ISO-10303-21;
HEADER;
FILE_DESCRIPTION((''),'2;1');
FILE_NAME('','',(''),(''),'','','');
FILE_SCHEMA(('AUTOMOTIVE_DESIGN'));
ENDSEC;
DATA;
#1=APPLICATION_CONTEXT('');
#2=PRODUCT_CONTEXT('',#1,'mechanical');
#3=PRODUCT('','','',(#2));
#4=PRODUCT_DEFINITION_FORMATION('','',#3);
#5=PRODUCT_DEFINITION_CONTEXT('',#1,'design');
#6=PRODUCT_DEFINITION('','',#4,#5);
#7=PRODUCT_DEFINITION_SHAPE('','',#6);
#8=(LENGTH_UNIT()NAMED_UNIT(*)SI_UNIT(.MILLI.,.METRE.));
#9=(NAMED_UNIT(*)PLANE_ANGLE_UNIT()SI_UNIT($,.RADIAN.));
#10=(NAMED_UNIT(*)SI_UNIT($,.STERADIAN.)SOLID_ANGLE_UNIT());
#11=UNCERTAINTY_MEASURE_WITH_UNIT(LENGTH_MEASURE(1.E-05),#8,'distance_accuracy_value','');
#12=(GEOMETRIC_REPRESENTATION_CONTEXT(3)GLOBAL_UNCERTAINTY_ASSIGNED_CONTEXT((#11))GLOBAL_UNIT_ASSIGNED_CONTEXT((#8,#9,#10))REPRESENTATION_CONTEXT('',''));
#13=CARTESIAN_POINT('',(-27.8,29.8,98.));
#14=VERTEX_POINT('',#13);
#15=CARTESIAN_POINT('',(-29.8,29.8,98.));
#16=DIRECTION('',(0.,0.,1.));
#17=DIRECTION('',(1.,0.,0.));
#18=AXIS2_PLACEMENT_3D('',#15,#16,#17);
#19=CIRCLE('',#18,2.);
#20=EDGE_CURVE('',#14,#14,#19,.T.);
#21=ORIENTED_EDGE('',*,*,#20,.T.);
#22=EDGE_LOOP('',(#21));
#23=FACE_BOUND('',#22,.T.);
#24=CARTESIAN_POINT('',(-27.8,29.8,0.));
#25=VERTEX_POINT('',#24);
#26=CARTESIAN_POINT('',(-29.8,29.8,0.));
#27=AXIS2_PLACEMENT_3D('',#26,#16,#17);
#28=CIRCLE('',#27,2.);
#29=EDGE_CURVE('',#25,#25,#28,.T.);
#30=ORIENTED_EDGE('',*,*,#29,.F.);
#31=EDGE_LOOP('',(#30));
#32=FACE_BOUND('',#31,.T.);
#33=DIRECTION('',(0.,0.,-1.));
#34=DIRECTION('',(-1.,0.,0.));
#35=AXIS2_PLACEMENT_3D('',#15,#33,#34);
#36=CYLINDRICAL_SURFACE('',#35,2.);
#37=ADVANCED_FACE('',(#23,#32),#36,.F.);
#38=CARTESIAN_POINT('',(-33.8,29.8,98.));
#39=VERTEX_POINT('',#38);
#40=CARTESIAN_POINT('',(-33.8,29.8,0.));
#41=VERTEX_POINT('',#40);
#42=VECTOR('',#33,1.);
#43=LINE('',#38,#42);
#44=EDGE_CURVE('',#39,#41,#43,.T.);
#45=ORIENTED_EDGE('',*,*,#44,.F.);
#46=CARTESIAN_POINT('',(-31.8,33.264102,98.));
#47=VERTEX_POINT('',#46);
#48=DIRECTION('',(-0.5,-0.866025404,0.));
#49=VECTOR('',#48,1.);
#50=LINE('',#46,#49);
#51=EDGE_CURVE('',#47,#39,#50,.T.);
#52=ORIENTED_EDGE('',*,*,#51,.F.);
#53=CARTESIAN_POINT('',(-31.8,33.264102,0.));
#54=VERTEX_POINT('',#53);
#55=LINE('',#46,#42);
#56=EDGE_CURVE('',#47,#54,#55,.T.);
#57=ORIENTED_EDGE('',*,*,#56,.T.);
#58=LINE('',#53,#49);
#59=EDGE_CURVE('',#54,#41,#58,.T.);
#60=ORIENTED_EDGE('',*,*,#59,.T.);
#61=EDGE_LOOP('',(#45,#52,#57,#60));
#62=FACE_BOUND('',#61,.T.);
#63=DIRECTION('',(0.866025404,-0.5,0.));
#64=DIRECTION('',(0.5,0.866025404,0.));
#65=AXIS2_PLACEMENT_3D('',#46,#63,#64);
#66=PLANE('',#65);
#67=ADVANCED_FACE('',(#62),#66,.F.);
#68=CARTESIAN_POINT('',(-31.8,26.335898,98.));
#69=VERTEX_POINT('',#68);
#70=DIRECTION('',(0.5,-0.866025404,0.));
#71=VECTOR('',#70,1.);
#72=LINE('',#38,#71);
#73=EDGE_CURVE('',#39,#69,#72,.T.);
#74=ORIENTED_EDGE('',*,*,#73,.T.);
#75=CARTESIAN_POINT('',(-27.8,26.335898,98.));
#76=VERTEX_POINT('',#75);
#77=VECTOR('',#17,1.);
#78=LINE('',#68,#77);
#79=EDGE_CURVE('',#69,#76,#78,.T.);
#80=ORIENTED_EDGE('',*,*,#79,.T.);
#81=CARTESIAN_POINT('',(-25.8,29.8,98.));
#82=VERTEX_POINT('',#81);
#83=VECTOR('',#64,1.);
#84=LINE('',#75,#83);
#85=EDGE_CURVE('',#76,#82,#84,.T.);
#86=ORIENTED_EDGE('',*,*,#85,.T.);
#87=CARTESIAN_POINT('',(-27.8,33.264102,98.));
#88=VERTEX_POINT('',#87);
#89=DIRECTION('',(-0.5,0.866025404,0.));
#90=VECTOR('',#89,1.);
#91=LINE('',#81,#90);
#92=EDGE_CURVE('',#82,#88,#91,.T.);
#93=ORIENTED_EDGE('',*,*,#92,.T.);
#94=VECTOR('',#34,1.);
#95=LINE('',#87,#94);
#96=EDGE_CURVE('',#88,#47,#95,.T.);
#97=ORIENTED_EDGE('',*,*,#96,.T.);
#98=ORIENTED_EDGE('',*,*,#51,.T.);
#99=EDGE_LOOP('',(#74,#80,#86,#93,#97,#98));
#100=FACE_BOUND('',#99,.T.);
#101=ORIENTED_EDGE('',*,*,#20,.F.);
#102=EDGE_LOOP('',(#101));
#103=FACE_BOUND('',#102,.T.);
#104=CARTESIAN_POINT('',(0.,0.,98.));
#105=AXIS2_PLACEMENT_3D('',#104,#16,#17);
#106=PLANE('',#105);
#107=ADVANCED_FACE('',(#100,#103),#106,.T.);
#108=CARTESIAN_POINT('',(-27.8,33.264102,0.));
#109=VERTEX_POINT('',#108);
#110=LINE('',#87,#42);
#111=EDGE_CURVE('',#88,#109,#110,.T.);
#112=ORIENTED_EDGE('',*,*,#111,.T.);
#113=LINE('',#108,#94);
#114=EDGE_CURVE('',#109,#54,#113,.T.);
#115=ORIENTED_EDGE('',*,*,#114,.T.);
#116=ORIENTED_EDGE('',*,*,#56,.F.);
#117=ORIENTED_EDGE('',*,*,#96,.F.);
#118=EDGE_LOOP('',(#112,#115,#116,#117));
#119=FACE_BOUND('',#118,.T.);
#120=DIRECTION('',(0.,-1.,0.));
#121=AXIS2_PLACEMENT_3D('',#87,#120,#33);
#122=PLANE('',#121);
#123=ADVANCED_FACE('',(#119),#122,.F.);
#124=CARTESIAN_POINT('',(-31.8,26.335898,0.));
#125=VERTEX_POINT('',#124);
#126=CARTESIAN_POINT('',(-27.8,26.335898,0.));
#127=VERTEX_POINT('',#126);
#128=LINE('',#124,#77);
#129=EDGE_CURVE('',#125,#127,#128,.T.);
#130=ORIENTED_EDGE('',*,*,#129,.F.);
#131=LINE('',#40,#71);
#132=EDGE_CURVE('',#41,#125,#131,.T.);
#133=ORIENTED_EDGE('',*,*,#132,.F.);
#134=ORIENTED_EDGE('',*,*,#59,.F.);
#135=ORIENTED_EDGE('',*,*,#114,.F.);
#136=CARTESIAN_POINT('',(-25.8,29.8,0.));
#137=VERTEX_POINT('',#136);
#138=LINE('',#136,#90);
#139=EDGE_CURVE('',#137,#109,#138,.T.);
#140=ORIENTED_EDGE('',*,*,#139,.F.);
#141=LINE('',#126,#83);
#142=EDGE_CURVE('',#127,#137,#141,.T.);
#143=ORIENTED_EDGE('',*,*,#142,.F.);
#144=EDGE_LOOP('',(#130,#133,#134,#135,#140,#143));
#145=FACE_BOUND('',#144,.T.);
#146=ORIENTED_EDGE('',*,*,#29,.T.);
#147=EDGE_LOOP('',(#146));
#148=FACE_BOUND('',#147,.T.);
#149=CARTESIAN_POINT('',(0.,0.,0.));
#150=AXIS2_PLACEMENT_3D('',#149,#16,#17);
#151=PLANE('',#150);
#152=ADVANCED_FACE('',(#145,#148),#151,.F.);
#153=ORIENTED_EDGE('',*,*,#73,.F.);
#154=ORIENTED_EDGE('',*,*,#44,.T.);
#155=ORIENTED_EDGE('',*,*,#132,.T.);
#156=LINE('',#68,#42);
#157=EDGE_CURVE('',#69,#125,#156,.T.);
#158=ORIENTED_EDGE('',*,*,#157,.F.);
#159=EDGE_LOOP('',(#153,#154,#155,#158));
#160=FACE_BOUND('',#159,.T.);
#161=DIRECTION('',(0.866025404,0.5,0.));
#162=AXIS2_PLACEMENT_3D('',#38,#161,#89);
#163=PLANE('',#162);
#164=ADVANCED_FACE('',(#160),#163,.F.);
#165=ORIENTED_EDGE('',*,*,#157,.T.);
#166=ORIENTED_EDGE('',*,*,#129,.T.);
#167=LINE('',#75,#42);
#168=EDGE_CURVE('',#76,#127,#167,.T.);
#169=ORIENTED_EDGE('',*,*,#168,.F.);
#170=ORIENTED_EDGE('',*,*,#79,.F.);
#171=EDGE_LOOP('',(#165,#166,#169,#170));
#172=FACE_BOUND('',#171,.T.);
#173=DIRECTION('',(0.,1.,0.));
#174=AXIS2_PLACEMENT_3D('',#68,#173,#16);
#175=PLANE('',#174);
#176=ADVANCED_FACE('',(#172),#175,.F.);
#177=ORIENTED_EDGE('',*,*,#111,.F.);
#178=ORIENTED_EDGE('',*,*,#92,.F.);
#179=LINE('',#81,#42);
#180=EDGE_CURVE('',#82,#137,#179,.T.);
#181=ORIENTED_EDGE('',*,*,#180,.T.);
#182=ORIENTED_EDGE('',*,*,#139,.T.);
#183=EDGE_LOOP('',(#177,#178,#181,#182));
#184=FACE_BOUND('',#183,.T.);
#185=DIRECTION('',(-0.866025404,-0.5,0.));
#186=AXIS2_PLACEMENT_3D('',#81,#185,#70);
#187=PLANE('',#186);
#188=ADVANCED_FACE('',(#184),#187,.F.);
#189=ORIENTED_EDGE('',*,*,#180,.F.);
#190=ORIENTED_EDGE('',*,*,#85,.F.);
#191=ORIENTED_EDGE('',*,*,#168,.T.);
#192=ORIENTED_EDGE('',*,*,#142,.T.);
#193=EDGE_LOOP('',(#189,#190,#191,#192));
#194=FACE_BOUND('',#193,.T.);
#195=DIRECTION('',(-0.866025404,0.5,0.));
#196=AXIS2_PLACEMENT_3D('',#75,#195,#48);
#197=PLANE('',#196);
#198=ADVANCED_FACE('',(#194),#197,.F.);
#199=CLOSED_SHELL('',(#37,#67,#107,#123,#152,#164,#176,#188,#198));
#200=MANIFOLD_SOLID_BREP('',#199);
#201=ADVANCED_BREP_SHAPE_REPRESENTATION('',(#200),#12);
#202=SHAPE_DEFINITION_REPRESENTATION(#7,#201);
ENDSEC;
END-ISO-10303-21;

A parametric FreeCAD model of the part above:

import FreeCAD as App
import Part
import Sketcher
from FreeCAD import Vector
Q = App.Units.Quantity


def add_polygon(sketch, points):
    """Adds a closed chain of lines whose ends are joined by coincident constraints."""
    first, n = sketch.GeometryCount, len(points)
    for a, b in zip(points, points[1:] + points[:1]):
        sketch.addGeometry(Part.LineSegment(App.Vector(*a, 0), App.Vector(*b, 0)), False)
    for i in range(n):
        sketch.addConstraint(Sketcher.Constraint("Coincident", first + i, 2, first + (i + 1) % n, 1))

doc = App.newDocument("Part")
body = doc.addObject("PartDesign::Body", "Body")

sketch1 = body.newObject("Sketcher::SketchObject", "Sketch")
sketch1.AttachmentSupport = (doc.getObject("XY_Plane"), [""])
sketch1.MapMode = "FlatFace"
add_polygon(sketch1, [(-25.8, 29.8), (-27.8, 33.3), (-31.8, 33.3), (-33.8, 29.8), (-31.8, 26.3), (-27.8, 26.3)])
sketch1.addGeometry(Part.Circle(Vector(-29.8, 29.8, 0), Vector(0, 0, 1), 2), False)
sketch1.addConstraint([
    Sketcher.Constraint("Horizontal", 1),
    Sketcher.Constraint("Horizontal", 4),
    Sketcher.Constraint("Parallel", 0, 3),
    Sketcher.Constraint("Parallel", 2, 5),
    Sketcher.Constraint("Horizontal", 6, 3, 2, 2),
    Sketcher.Constraint("Horizontal", 2, 2, 5, 2),
    Sketcher.Constraint("Vertical", 1, 2, 3, 2),
    Sketcher.Constraint("Vertical", 0, 2, 4, 2),
    Sketcher.Constraint("Diameter", 6, Q("4 mm")),
    Sketcher.Constraint("DistanceX", 1, 2, 1, 1, Q("4 mm")),
    Sketcher.Constraint("Angle", 0, Q("120 deg")),
    Sketcher.Constraint("Distance", 0, Q("4 mm")),
    Sketcher.Constraint("DistanceX", 6, 3, 0, 2, Q("2 mm")),
    Sketcher.Constraint("DistanceX", 6, 3, -1, 1, Q("29.8 mm")),
    Sketcher.Constraint("DistanceY", -1, 1, 6, 3, Q("29.8 mm")),
])
pad1 = body.newObject("PartDesign::Pad", "Pad")
pad1.Profile = sketch1
pad1.Length = 98

doc.recompute()
